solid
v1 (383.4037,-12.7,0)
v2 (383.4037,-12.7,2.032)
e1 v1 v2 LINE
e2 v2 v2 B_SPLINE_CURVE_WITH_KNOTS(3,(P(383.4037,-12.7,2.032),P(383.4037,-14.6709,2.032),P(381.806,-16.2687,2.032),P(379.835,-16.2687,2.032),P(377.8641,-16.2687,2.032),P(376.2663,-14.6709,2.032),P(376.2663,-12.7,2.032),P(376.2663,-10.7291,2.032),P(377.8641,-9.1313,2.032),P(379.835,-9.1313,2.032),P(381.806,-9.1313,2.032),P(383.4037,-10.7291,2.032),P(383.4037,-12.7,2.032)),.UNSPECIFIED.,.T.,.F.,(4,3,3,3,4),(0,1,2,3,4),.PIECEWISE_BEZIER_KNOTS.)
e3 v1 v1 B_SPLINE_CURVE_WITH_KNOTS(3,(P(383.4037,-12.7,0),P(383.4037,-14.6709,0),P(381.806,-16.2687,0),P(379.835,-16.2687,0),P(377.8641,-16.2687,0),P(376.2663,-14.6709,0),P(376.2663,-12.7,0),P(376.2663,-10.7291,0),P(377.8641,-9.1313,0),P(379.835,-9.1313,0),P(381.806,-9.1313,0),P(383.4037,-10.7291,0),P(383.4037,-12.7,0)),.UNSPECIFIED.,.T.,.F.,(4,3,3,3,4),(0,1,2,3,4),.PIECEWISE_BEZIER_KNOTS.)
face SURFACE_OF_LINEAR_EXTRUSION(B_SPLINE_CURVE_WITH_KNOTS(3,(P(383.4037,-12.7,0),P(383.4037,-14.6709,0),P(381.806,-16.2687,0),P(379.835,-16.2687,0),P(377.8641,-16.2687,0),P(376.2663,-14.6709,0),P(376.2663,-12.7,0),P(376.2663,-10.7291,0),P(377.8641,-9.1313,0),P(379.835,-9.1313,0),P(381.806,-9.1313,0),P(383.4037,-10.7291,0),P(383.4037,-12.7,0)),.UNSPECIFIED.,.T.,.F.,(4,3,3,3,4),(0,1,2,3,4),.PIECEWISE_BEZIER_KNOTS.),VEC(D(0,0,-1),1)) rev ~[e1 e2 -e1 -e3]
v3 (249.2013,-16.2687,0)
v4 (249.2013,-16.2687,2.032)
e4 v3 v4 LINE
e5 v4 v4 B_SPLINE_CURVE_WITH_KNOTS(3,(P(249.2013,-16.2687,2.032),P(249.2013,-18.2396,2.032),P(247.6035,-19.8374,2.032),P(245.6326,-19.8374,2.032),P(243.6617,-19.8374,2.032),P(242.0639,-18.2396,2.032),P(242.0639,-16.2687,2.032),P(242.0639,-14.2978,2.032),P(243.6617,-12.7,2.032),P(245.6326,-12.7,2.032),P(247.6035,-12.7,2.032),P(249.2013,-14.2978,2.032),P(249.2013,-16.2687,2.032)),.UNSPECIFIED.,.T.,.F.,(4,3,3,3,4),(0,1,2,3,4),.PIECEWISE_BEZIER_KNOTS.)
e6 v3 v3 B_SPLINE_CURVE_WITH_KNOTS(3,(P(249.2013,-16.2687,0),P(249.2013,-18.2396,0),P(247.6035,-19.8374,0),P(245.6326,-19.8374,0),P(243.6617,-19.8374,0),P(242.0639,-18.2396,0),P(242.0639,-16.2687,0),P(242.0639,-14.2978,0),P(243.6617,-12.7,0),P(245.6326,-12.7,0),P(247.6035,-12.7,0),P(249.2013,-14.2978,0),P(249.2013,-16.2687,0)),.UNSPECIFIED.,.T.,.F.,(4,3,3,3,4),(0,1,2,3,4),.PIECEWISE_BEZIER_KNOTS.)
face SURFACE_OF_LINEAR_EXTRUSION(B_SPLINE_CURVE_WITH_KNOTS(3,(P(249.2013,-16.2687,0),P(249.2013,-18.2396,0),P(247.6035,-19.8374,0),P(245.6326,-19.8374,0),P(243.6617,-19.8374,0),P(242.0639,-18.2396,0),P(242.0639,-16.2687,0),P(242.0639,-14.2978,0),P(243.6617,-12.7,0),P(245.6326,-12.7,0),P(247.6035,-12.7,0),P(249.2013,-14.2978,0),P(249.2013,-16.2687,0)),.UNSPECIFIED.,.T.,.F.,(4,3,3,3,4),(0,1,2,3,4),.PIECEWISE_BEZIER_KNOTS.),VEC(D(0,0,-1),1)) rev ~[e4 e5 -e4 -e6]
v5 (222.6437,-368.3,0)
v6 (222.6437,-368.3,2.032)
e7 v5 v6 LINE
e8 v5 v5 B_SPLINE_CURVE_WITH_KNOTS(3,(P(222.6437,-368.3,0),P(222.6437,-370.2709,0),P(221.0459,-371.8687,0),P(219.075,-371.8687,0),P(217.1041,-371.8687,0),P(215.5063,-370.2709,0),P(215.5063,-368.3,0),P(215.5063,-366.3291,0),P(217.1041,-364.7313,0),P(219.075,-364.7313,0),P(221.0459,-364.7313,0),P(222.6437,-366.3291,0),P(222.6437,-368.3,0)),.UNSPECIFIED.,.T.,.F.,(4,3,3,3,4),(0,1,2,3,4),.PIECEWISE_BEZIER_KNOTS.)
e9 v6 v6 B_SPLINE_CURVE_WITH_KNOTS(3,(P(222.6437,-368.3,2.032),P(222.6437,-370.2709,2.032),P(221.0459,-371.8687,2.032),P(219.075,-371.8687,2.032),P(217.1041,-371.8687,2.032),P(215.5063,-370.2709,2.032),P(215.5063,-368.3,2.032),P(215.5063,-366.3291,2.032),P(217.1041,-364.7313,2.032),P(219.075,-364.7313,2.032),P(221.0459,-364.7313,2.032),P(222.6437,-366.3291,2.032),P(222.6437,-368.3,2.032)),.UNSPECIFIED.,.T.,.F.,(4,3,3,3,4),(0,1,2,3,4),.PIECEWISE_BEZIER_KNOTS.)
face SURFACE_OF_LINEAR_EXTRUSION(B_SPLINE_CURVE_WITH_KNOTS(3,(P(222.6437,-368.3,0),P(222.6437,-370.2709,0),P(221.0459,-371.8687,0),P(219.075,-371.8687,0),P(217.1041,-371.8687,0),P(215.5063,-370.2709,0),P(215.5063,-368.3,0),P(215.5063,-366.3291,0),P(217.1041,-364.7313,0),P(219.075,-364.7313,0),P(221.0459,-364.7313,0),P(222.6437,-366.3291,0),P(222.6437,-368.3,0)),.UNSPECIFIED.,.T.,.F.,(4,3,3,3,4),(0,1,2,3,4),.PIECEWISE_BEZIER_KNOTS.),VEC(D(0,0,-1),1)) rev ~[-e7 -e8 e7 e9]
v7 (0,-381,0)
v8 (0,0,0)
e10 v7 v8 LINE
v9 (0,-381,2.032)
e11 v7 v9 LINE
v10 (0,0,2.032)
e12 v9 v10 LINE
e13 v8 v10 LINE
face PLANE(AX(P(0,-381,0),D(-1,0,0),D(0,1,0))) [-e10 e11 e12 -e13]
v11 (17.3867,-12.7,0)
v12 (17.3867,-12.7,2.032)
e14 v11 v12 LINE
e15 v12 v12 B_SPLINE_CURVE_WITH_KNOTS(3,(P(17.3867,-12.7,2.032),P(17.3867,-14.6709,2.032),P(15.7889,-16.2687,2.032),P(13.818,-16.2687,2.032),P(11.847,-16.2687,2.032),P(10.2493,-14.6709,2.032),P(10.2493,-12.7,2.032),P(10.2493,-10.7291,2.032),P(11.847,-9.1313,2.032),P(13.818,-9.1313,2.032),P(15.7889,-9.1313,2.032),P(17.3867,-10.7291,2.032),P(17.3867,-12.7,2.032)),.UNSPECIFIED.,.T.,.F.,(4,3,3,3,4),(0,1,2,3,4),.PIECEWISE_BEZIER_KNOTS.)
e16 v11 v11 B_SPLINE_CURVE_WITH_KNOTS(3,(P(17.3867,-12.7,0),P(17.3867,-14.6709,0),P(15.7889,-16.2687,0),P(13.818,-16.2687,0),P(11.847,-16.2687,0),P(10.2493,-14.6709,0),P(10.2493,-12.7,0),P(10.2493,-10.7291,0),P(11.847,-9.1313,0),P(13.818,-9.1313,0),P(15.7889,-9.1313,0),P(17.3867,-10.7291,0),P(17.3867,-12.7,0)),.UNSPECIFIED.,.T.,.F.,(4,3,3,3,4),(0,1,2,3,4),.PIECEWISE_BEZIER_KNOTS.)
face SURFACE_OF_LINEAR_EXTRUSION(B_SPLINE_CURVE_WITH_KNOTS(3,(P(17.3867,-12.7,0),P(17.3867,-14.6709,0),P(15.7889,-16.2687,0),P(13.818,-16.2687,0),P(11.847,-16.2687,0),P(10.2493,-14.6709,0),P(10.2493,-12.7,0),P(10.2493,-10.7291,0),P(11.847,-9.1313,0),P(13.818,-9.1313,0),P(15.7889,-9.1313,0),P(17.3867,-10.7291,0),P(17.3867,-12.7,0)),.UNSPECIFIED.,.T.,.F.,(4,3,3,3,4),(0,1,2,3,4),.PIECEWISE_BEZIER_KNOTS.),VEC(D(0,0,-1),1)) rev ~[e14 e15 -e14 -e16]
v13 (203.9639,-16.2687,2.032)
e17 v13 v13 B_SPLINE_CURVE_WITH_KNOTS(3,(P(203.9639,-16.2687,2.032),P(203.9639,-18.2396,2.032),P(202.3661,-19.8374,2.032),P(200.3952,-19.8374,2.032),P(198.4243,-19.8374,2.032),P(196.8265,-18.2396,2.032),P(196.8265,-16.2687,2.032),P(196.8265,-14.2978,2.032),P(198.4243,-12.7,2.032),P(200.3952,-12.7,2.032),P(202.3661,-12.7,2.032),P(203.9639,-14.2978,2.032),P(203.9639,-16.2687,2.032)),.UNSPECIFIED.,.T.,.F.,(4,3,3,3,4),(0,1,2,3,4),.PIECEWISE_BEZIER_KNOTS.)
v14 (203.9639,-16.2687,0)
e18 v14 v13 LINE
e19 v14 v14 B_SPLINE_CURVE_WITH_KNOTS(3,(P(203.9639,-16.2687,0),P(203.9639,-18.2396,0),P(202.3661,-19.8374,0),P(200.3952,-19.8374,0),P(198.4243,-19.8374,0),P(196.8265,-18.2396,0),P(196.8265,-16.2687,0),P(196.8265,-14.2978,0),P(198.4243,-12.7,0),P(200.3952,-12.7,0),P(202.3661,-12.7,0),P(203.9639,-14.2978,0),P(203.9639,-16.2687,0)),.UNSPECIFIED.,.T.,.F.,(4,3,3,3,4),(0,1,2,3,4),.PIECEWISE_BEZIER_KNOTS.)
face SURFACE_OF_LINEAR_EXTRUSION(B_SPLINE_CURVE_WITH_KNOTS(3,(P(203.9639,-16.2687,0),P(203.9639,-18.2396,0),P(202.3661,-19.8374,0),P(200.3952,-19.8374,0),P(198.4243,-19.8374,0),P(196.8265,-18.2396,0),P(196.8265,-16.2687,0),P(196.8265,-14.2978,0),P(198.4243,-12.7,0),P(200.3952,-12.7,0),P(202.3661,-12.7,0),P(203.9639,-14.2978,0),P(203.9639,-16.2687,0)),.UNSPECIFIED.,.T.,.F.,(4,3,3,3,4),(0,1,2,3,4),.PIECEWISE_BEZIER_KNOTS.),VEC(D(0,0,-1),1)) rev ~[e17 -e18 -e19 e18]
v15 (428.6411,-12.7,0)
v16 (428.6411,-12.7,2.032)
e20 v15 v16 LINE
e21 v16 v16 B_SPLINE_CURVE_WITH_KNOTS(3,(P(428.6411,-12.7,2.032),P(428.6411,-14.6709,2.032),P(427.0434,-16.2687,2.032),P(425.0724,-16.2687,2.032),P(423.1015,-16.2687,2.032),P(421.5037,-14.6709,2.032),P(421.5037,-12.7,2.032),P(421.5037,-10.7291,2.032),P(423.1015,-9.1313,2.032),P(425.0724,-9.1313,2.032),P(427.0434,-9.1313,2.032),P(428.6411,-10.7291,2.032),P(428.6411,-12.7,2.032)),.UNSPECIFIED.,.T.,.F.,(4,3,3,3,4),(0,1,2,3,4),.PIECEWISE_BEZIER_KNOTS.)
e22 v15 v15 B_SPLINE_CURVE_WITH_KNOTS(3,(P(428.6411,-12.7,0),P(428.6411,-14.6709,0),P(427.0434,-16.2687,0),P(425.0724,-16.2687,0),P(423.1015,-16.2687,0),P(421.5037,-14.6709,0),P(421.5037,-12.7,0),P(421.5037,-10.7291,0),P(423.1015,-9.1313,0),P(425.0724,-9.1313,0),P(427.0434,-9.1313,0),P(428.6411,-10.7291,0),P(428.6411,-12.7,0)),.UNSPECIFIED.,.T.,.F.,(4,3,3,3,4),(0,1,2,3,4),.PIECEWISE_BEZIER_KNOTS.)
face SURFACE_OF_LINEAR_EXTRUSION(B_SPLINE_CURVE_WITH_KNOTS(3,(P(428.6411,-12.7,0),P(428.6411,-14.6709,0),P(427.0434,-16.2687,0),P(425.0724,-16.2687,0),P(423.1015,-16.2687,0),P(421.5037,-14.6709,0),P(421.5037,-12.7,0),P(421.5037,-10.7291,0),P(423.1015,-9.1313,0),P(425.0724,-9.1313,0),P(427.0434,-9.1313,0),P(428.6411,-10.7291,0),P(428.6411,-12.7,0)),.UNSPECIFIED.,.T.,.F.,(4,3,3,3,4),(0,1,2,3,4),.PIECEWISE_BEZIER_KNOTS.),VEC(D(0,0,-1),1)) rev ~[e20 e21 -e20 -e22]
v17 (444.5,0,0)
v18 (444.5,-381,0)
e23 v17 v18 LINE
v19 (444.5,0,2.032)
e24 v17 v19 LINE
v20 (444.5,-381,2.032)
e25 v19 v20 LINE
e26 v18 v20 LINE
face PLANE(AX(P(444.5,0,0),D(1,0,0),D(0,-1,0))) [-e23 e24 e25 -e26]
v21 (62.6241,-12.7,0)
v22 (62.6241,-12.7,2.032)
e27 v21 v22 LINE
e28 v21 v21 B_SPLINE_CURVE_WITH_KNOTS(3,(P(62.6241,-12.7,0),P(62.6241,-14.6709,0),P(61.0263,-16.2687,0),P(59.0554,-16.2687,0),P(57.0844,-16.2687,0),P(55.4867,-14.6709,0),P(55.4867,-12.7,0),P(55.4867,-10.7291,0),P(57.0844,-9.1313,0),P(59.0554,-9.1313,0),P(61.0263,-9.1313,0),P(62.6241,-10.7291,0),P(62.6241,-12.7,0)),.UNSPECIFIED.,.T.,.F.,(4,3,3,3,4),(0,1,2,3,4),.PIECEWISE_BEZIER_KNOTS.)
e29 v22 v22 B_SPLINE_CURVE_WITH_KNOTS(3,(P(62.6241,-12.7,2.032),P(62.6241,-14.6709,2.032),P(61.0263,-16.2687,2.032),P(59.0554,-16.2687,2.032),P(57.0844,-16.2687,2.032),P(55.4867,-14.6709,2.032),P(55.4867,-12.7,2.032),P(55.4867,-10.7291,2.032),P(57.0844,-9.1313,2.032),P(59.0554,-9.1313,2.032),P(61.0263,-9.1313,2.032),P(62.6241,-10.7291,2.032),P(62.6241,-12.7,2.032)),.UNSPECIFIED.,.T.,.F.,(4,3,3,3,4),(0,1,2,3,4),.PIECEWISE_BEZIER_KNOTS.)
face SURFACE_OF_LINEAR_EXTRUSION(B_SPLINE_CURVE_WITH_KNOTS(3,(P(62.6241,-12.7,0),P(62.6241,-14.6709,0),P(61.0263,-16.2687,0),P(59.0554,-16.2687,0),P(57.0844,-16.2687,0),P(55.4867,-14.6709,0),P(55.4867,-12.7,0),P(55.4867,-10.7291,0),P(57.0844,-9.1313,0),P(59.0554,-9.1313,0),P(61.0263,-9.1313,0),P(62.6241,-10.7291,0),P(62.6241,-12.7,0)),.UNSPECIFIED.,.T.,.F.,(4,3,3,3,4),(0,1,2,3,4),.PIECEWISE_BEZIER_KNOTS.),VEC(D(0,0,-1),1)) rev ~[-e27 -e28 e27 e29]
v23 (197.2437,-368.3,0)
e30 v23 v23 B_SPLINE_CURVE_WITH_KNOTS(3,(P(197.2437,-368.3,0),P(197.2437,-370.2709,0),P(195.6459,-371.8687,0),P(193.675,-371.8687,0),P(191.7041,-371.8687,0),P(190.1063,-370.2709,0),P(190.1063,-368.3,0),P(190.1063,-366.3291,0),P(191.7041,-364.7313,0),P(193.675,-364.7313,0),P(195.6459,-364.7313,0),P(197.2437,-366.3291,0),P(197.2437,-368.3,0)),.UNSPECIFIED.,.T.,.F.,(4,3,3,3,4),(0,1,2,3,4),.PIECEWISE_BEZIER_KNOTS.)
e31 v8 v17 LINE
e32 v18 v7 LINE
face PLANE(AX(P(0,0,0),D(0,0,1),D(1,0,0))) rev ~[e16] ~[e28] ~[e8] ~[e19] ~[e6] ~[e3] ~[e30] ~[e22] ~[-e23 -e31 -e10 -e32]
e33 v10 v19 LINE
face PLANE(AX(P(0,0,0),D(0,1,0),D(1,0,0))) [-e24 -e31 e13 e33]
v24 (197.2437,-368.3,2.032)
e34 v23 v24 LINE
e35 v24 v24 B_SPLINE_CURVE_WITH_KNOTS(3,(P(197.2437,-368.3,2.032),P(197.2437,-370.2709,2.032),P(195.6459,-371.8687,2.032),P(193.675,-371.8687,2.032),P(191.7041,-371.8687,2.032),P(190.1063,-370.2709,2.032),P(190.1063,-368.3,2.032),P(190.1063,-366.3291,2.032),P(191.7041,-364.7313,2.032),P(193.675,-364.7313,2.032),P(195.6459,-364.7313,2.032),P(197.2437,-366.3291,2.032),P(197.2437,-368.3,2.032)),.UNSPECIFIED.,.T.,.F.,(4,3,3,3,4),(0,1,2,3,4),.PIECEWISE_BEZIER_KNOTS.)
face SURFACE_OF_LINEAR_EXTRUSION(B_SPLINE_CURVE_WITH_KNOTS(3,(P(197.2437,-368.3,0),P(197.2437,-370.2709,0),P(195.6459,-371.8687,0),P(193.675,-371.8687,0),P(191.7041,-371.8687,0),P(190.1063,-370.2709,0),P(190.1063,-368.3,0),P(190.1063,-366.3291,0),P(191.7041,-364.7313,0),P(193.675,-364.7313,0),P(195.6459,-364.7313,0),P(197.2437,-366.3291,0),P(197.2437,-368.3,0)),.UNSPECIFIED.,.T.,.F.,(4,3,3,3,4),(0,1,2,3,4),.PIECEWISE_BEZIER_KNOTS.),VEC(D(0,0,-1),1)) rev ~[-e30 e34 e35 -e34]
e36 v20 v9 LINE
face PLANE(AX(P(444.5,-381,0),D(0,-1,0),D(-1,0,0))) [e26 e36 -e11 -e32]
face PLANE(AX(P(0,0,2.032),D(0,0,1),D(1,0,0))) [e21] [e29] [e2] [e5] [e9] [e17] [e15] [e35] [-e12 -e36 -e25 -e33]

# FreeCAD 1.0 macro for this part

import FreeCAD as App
import Part
import Sketcher
from FreeCAD import Vector
Q = App.Units.Quantity

doc = App.newDocument("Part")
body = doc.addObject("PartDesign::Body", "Body")

# Sketch on XY plane
sketch1 = body.newObject("Sketcher::SketchObject", "Sketch")
sketch1.AttachmentSupport = (doc.getObject("XY_Plane"), [""])
sketch1.MapMode = "FlatFace"
sketch1.addGeometry([
    Part.LineSegment(Vector(0, 0, 0), Vector(0, -381, 0)),  # 0
    Part.LineSegment(Vector(0, -381, 0), Vector(444.5, -381, 0)),  # 1
    Part.LineSegment(Vector(444.5, -381, 0), Vector(444.5, 0, 0)),  # 2
    Part.LineSegment(Vector(444.5, 0, 0), Vector(0, 0, 0)),  # 3
    Part.BSplineCurve([Vector(197.2437, -368.3, 0), Vector(197.2437, -370.2709, 0), Vector(195.6459, -371.8687, 0), Vector(193.675, -371.8687, 0), Vector(191.7041, -371.8687, 0), Vector(190.1063, -370.2709, 0), Vector(190.1063, -368.3, 0), Vector(190.1063, -366.3291, 0), Vector(191.7041, -364.7313, 0), Vector(193.675, -364.7313, 0), Vector(195.6459, -364.7313, 0), Vector(197.2437, -366.3291, 0), Vector(197.2437, -368.3, 0)], [4, 3, 3, 3, 4], [0, 1, 2, 3, 4], False, 3, [1, 1, 1, 1, 1, 1, 1, 1, 1, 1, 1, 1, 1], False),  # 4
    Part.BSplineCurve([Vector(222.6437, -368.3, 0), Vector(222.6437, -370.2709, 0), Vector(221.0459, -371.8687, 0), Vector(219.075, -371.8687, 0), Vector(217.1041, -371.8687, 0), Vector(215.5063, -370.2709, 0), Vector(215.5063, -368.3, 0), Vector(215.5063, -366.3291, 0), Vector(217.1041, -364.7313, 0), Vector(219.075, -364.7313, 0), Vector(221.0459, -364.7313, 0), Vector(222.6437, -366.3291, 0), Vector(222.6437, -368.3, 0)], [4, 3, 3, 3, 4], [0, 1, 2, 3, 4], False, 3, [1, 1, 1, 1, 1, 1, 1, 1, 1, 1, 1, 1, 1], False),  # 5
    Part.BSplineCurve([Vector(17.3867, -12.7, 0), Vector(17.3867, -14.6709, 0), Vector(15.7889, -16.2687, 0), Vector(13.818, -16.2687, 0), Vector(11.847, -16.2687, 0), Vector(10.2493, -14.6709, 0), Vector(10.2493, -12.7, 0), Vector(10.2493, -10.7291, 0), Vector(11.847, -9.1313, 0), Vector(13.818, -9.1313, 0), Vector(15.7889, -9.1313, 0), Vector(17.3867, -10.7291, 0), Vector(17.3867, -12.7, 0)], [4, 3, 3, 3, 4], [0, 1, 2, 3, 4], False, 3, [1, 1, 1, 1, 1, 1, 1, 1, 1, 1, 1, 1, 1], False),  # 6
    Part.BSplineCurve([Vector(62.6241, -12.7, 0), Vector(62.6241, -14.6709, 0), Vector(61.0263, -16.2687, 0), Vector(59.0554, -16.2687, 0), Vector(57.0844, -16.2687, 0), Vector(55.4867, -14.6709, 0), Vector(55.4867, -12.7, 0), Vector(55.4867, -10.7291, 0), Vector(57.0844, -9.1313, 0), Vector(59.0554, -9.1313, 0), Vector(61.0263, -9.1313, 0), Vector(62.6241, -10.7291, 0), Vector(62.6241, -12.7, 0)], [4, 3, 3, 3, 4], [0, 1, 2, 3, 4], False, 3, [1, 1, 1, 1, 1, 1, 1, 1, 1, 1, 1, 1, 1], False),  # 7
    Part.BSplineCurve([Vector(203.9639, -16.2687, 0), Vector(203.9639, -18.2396, 0), Vector(202.3661, -19.8374, 0), Vector(200.3952, -19.8374, 0), Vector(198.4243, -19.8374, 0), Vector(196.8265, -18.2396, 0), Vector(196.8265, -16.2687, 0), Vector(196.8265, -14.2978, 0), Vector(198.4243, -12.7, 0), Vector(200.3952, -12.7, 0), Vector(202.3661, -12.7, 0), Vector(203.9639, -14.2978, 0), Vector(203.9639, -16.2687, 0)], [4, 3, 3, 3, 4], [0, 1, 2, 3, 4], False, 3, [1, 1, 1, 1, 1, 1, 1, 1, 1, 1, 1, 1, 1], False),  # 8
    Part.BSplineCurve([Vector(249.2013, -16.2687, 0), Vector(249.2013, -18.2396, 0), Vector(247.6035, -19.8374, 0), Vector(245.6326, -19.8374, 0), Vector(243.6617, -19.8374, 0), Vector(242.0639, -18.2396, 0), Vector(242.0639, -16.2687, 0), Vector(242.0639, -14.2978, 0), Vector(243.6617, -12.7, 0), Vector(245.6326, -12.7, 0), Vector(247.6035, -12.7, 0), Vector(249.2013, -14.2978, 0), Vector(249.2013, -16.2687, 0)], [4, 3, 3, 3, 4], [0, 1, 2, 3, 4], False, 3, [1, 1, 1, 1, 1, 1, 1, 1, 1, 1, 1, 1, 1], False),  # 9
    Part.BSplineCurve([Vector(383.4037, -12.7, 0), Vector(383.4037, -14.6709, 0), Vector(381.806, -16.2687, 0), Vector(379.835, -16.2687, 0), Vector(377.8641, -16.2687, 0), Vector(376.2663, -14.6709, 0), Vector(376.2663, -12.7, 0), Vector(376.2663, -10.7291, 0), Vector(377.8641, -9.1313, 0), Vector(379.835, -9.1313, 0), Vector(381.806, -9.1313, 0), Vector(383.4037, -10.7291, 0), Vector(383.4037, -12.7, 0)], [4, 3, 3, 3, 4], [0, 1, 2, 3, 4], False, 3, [1, 1, 1, 1, 1, 1, 1, 1, 1, 1, 1, 1, 1], False),  # 10
    Part.BSplineCurve([Vector(428.6411, -12.7, 0), Vector(428.6411, -14.6709, 0), Vector(427.0434, -16.2687, 0), Vector(425.0724, -16.2687, 0), Vector(423.1015, -16.2687, 0), Vector(421.5037, -14.6709, 0), Vector(421.5037, -12.7, 0), Vector(421.5037, -10.7291, 0), Vector(423.1015, -9.1313, 0), Vector(425.0724, -9.1313, 0), Vector(427.0434, -9.1313, 0), Vector(428.6411, -10.7291, 0), Vector(428.6411, -12.7, 0)], [4, 3, 3, 3, 4], [0, 1, 2, 3, 4], False, 3, [1, 1, 1, 1, 1, 1, 1, 1, 1, 1, 1, 1, 1], False),  # 11
], False)
sketch1.addConstraint([
    Sketcher.Constraint("Block", 4),
    Sketcher.Constraint("Block", 5),
    Sketcher.Constraint("Block", 6),
    Sketcher.Constraint("Block", 7),
    Sketcher.Constraint("Block", 8),
    Sketcher.Constraint("Block", 9),
    Sketcher.Constraint("Block", 10),
    Sketcher.Constraint("Block", 11),
    Sketcher.Constraint("Coincident", 0, 2, 1, 1),
    Sketcher.Constraint("Coincident", 1, 2, 2, 1),
    Sketcher.Constraint("Coincident", 2, 2, 3, 1),
    Sketcher.Constraint("Coincident", 3, 2, 0, 1),
    Sketcher.Constraint("Vertical", 0),
    Sketcher.Constraint("Horizontal", 1),
    Sketcher.Constraint("Vertical", 2),
    Sketcher.Constraint("Horizontal", 3),
    Sketcher.Constraint("Coincident", 3, 2, -1, 1),
    Sketcher.Constraint("DistanceY", 0, 2, 0, 1, Q("15 in")),
    Sketcher.Constraint("DistanceX", 1, 1, 1, 2, Q("17.5 in")),
])
pad1 = body.newObject("PartDesign::Pad", "Pad")
pad1.Profile = sketch1
pad1.Length = Q("0.08 in")

doc.recompute()
